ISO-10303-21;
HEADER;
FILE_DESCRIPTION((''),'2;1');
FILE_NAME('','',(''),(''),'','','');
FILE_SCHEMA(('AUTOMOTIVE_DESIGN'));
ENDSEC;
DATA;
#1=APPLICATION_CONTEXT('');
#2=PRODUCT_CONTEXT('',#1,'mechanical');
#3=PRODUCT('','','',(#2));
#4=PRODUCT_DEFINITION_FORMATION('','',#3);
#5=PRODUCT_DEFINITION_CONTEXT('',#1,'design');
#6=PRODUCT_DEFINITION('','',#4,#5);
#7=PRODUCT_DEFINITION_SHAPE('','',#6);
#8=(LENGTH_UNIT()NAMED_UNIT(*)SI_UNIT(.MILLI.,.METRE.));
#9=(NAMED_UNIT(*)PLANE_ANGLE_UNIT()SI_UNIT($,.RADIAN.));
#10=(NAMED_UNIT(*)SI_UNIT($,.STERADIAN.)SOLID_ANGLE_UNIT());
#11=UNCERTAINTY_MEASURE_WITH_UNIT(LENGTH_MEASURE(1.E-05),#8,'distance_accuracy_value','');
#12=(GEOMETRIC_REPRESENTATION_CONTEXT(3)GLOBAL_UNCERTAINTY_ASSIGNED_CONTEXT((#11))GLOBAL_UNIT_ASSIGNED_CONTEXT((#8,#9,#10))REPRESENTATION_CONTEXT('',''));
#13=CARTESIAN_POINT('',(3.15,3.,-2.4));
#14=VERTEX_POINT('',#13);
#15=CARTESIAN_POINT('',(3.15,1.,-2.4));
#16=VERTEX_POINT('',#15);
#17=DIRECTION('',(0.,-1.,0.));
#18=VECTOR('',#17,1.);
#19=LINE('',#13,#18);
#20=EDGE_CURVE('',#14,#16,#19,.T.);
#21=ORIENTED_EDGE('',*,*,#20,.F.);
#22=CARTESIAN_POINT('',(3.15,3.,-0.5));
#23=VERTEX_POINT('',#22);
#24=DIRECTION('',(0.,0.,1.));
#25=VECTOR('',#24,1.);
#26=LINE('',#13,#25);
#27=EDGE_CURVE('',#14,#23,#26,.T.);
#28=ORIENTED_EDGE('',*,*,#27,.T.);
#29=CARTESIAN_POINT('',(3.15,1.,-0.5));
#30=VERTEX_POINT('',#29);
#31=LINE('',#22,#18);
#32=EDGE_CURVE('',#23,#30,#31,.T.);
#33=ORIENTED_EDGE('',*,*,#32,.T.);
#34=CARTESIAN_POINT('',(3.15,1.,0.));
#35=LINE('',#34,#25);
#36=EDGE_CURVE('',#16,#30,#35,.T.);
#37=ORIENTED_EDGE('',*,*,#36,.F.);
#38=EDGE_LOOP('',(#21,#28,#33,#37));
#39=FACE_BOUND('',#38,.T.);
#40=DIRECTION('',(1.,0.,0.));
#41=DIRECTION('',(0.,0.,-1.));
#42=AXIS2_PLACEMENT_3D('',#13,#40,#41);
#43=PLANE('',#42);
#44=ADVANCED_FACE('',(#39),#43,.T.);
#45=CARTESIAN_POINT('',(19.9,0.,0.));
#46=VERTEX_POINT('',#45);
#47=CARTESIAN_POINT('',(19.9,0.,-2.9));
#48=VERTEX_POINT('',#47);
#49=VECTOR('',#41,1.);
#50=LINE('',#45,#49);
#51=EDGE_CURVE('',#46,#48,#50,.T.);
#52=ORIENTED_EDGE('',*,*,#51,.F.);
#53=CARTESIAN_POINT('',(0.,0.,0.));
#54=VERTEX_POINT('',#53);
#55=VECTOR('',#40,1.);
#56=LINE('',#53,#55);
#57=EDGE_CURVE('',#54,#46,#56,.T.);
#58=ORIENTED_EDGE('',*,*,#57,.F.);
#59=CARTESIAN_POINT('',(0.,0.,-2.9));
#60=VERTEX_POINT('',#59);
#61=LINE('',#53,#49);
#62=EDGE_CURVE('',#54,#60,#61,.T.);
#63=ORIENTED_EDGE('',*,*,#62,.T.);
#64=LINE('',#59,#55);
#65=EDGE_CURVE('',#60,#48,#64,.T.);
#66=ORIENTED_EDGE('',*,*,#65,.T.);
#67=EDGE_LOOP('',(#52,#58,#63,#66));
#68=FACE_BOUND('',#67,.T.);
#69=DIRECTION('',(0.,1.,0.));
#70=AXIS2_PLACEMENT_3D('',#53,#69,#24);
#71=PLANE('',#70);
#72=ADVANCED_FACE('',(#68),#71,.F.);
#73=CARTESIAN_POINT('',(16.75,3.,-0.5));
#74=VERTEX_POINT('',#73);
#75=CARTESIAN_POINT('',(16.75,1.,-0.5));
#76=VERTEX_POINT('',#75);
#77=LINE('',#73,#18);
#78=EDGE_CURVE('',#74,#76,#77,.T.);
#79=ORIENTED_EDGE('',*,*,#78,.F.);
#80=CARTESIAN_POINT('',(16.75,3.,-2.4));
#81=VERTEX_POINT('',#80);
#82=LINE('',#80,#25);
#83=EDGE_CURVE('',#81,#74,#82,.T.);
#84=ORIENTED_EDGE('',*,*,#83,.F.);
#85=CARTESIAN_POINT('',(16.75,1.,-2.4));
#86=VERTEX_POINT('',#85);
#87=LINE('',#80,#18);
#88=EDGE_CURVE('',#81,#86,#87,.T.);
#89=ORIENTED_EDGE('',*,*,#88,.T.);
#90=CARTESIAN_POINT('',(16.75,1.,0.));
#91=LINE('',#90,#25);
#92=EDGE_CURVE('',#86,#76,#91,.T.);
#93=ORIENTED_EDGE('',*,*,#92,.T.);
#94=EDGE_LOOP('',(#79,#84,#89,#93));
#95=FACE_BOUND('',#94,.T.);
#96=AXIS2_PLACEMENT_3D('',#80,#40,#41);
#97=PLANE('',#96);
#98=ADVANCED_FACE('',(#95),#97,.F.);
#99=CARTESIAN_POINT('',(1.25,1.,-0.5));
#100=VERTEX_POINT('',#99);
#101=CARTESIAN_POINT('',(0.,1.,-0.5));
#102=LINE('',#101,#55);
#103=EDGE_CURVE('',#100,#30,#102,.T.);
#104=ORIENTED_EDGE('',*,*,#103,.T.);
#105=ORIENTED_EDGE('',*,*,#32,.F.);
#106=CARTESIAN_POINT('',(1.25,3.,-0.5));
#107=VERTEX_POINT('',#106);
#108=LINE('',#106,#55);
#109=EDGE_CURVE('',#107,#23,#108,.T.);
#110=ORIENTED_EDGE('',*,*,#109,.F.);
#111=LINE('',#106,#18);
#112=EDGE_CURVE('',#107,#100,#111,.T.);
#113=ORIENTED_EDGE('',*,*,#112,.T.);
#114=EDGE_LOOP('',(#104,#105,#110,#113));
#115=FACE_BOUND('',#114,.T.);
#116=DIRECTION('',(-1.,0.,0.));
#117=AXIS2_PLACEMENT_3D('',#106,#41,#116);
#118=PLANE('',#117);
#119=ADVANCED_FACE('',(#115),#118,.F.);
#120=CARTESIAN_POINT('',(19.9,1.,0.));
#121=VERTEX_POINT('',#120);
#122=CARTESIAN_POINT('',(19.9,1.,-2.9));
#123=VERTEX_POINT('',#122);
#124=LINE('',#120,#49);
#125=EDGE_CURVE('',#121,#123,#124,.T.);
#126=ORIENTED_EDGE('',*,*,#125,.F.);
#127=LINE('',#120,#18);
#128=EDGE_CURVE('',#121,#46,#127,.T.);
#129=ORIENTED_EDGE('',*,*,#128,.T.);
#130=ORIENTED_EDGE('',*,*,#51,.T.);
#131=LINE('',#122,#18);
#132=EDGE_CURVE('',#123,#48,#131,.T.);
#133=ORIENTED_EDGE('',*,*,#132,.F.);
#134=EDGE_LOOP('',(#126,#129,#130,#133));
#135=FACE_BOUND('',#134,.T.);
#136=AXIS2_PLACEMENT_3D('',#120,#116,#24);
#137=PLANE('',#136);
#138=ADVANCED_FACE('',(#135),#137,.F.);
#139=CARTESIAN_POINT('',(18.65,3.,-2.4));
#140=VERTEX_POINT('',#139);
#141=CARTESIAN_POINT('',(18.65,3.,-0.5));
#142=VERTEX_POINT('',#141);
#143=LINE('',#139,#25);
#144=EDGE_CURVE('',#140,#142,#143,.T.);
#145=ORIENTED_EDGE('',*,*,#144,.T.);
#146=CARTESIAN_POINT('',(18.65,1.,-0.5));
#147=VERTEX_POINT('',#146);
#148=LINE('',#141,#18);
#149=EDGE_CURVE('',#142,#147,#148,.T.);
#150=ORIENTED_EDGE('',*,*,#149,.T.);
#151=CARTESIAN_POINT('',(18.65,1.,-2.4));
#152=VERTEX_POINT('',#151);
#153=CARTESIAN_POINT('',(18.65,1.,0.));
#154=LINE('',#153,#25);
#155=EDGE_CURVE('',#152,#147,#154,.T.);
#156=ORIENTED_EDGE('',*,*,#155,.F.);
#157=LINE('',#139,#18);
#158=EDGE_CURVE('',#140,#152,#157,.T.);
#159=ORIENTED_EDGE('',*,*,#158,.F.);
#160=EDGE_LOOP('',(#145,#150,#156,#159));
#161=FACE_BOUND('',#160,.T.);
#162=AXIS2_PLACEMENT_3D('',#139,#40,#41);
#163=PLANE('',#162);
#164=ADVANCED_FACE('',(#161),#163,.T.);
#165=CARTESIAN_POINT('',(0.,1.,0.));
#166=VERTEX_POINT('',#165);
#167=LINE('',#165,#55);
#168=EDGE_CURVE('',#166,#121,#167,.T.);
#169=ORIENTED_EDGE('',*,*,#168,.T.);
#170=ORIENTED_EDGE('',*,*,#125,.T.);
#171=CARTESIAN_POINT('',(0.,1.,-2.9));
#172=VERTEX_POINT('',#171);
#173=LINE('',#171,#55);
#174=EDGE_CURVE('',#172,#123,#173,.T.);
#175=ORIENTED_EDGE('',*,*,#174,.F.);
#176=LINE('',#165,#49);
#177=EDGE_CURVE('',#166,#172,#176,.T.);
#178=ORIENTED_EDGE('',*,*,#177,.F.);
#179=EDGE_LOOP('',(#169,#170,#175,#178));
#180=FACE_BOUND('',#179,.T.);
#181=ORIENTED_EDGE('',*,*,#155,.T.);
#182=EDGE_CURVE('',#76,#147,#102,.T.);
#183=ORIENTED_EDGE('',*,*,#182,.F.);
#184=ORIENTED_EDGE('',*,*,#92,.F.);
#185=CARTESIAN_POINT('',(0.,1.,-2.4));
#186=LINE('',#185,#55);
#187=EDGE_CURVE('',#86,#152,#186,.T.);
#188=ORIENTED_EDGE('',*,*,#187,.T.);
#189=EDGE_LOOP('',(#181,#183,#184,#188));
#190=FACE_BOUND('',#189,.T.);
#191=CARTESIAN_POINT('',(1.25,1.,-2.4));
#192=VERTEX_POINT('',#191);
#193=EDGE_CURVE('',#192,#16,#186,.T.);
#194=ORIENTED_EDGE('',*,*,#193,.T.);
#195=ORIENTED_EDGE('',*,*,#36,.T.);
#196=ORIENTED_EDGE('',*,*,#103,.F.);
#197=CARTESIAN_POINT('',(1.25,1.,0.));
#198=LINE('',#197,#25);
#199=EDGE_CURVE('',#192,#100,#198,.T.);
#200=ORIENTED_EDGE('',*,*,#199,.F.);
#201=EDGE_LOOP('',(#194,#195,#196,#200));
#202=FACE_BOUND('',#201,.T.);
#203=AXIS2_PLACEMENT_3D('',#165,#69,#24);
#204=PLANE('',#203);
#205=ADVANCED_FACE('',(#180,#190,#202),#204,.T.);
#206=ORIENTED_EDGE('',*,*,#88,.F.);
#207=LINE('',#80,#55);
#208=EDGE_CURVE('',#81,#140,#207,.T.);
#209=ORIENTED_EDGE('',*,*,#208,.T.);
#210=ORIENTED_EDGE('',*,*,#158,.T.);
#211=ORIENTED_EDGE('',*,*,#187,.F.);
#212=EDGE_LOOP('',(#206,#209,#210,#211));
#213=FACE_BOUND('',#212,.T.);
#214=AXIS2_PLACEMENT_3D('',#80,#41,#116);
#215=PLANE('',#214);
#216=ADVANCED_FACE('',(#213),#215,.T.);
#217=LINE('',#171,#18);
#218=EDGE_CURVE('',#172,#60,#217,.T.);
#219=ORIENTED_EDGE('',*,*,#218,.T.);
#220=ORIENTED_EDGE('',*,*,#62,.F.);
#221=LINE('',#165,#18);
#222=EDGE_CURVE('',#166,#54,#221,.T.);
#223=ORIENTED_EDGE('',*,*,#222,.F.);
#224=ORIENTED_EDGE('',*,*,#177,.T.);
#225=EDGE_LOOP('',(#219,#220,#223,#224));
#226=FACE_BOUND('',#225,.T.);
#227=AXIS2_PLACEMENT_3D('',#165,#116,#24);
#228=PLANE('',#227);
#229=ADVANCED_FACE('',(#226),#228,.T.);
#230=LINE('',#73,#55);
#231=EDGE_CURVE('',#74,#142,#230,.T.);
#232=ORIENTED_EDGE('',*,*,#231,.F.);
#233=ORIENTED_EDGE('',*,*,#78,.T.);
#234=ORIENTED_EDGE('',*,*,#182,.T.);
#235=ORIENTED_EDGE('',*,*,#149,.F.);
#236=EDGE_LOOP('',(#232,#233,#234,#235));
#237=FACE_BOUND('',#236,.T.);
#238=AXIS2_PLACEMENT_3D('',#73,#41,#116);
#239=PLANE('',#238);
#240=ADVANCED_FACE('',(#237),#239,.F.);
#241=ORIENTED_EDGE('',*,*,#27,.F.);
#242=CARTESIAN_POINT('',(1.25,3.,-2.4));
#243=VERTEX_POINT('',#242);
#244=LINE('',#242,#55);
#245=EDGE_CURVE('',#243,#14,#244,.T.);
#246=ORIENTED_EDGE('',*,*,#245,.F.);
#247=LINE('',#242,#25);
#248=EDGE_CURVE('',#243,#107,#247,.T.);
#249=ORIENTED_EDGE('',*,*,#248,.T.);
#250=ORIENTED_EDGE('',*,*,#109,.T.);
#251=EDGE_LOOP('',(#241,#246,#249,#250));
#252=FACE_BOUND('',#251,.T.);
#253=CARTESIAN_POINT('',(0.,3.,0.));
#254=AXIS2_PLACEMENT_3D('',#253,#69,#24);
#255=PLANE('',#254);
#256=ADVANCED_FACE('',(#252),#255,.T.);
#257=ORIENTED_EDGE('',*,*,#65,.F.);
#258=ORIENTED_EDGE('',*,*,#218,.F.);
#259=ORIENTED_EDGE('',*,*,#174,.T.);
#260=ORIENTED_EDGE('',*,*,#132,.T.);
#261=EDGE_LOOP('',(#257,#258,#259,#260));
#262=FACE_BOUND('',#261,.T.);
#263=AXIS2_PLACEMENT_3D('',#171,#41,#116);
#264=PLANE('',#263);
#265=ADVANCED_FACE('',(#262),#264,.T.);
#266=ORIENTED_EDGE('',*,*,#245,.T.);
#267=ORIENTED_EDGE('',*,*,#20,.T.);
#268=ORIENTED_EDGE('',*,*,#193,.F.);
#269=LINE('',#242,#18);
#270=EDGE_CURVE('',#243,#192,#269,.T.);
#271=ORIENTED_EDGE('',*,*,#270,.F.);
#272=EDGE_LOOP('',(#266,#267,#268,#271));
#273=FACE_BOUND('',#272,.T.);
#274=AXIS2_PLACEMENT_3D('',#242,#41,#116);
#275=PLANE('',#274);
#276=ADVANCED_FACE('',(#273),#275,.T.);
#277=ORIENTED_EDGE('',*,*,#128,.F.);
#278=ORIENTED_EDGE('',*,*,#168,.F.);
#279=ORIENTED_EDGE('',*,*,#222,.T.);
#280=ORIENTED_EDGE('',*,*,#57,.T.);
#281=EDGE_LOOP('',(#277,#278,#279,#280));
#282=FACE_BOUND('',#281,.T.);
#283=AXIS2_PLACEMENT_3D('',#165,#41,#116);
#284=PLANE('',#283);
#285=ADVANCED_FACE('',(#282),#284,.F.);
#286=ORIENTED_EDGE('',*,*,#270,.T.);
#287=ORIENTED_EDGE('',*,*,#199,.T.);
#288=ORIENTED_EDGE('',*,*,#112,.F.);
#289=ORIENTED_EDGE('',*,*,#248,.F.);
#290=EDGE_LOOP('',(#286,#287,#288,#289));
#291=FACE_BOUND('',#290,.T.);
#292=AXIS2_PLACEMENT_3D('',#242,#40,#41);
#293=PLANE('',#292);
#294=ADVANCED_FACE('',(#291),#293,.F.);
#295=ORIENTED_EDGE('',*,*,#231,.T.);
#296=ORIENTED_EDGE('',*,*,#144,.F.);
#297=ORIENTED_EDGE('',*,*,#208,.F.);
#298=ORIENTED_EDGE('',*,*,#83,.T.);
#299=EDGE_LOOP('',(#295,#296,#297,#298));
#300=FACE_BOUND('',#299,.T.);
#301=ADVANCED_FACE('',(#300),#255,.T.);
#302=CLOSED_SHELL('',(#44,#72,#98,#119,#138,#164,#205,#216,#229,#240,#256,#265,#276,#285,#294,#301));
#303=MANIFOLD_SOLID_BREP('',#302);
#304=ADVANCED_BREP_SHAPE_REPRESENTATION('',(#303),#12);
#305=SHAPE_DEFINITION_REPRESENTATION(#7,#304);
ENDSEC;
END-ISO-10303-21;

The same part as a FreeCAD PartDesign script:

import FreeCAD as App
import Part
import Sketcher
from FreeCAD import Vector
Q = App.Units.Quantity


def add_polygon(sketch, points):
    """Adds a closed chain of lines whose ends are joined by coincident constraints."""
    first, n = sketch.GeometryCount, len(points)
    for a, b in zip(points, points[1:] + points[:1]):
        sketch.addGeometry(Part.LineSegment(App.Vector(*a, 0), App.Vector(*b, 0)), False)
    for i in range(n):
        sketch.addConstraint(Sketcher.Constraint("Coincident", first + i, 2, first + (i + 1) % n, 1))

doc = App.newDocument("Part")
params = doc.addObject("Spreadsheet::Sheet", "Params")
for row, (alias, value) in enumerate([
    ("sketch1_width", "19.9 mm"),
    ("sketch1_width2", "1.9 mm"),
    ("sketch1_height", "2.9 mm"),
    ("pad1_length", "1 mm"),
    ("sketch2_width", "1.9 mm"),
    ("pad2_length", "3 mm"),
], start=1):
    params.set(f"A{row}", alias)
    params.set(f"B{row}", "=" + value)
    params.setAlias(f"B{row}", alias)

body = doc.addObject("PartDesign::Body", "Body")

# Sketch on XZ plane
sketch1 = doc.addObject("Sketcher::SketchObject", "Sketch")
body.addObject(sketch1)
sketch1.AttachmentSupport = (doc.XZ_Plane, [""])
sketch1.MapMode = "FlatFace"
add_polygon(sketch1, [(0, -2.9), (0, 0), (19.9, 0), (19.9, -2.9)])  # lines 0-3
add_polygon(sketch1, [(3.1, -0.5), (1.2, -0.5), (1.2, -2.4), (3.1, -2.4)])  # lines 4-7
add_polygon(sketch1, [(18.6, -0.5), (16.8, -0.5), (16.8, -2.4), (18.6, -2.4)])  # lines 8-11
sketch1.addConstraint([
    Sketcher.Constraint("Vertical", 0),
    Sketcher.Constraint("Horizontal", 1),
    Sketcher.Constraint("Vertical", 2),
    Sketcher.Constraint("Horizontal", 3),
    Sketcher.Constraint("Horizontal", 4),
    Sketcher.Constraint("Vertical", 5),
    Sketcher.Constraint("Horizontal", 6),
    Sketcher.Constraint("Vertical", 7),
    Sketcher.Constraint("Horizontal", 8),
    Sketcher.Constraint("Vertical", 9),
    Sketcher.Constraint("Horizontal", 10),
    Sketcher.Constraint("Vertical", 11),
    Sketcher.Constraint("Coincident", 0, 2, -1, 1),
    Sketcher.Constraint("Horizontal", 7, 2, 8, 2),
    Sketcher.Constraint("Horizontal", 6, 2, 9, 2),
    Sketcher.Constraint("Equal", 6, 8),
    Sketcher.Constraint("Equal", 10, 5),
    Sketcher.Constraint("DistanceX", 1, 1, 1, 2, Q("19.9 mm")),
    Sketcher.Constraint("DistanceX", 4, 2, 4, 1, Q("1.9 mm")),
    Sketcher.Constraint("DistanceY", 0, 1, 0, 2, Q("2.9 mm")),
    Sketcher.Constraint("DistanceY", 4, 2, -1, 1, Q("0.5 mm")),
    Sketcher.Constraint("DistanceX", 7, 2, 8, 2, Q("13.6 mm")),
    Sketcher.Constraint("DistanceX", -1, 1, 4, 2, Q("1.25 mm")),
])
sketch1.setExpression("Constraints[29]", "Params.sketch1_width")
sketch1.setExpression("Constraints[30]", "Params.sketch1_width2")
sketch1.setExpression("Constraints[31]", "Params.sketch1_height")
pad1 = doc.addObject("PartDesign::Pad", "Pad")
body.addObject(pad1)
pad1.Profile = sketch1
pad1.setExpression("Length", "Params.pad1_length")
pad1.Reversed = True

# Sketch on XZ plane
sketch2 = doc.addObject("Sketcher::SketchObject", "Sketch001")
body.addObject(sketch2)
sketch2.AttachmentSupport = (doc.XZ_Plane, [""])
sketch2.MapMode = "FlatFace"
add_polygon(sketch2, [(1.2, -2.4), (1.2, -0.5), (3.1, -0.5), (3.1, -2.4)])  # lines 0-3
add_polygon(sketch2, [(16.8, -2.4), (16.8, -0.5), (18.6, -0.5), (18.6, -2.4)])  # lines 4-7
sketch2.addConstraint([
    Sketcher.Constraint("Vertical", 0),
    Sketcher.Constraint("Horizontal", 1),
    Sketcher.Constraint("Vertical", 2),
    Sketcher.Constraint("Horizontal", 3),
    Sketcher.Constraint("Vertical", 4),
    Sketcher.Constraint("Horizontal", 5),
    Sketcher.Constraint("Vertical", 6),
    Sketcher.Constraint("Horizontal", 7),
    Sketcher.Constraint("Horizontal", 1, 2, 4, 2),
    Sketcher.Constraint("Horizontal", 3, 2, 6, 2),
    Sketcher.Constraint("Equal", 3, 5),
    Sketcher.Constraint("Equal", 7, 0),
    Sketcher.Constraint("DistanceX", 1, 1, 1, 2, Q("1.9 mm")),
    Sketcher.Constraint("DistanceY", 0, 2, -1, 1, Q("0.5 mm")),
    Sketcher.Constraint("DistanceX", 1, 2, 4, 2, Q("13.6 mm")),
    Sketcher.Constraint("DistanceX", -1, 1, 0, 2, Q("1.25 mm")),
])
sketch2.setExpression("Constraints[20]", "Params.sketch2_width")
pad2 = doc.addObject("PartDesign::Pad", "Pad001")
body.addObject(pad2)
pad2.Profile = sketch2
pad2.setExpression("Length", "Params.pad2_length")
pad2.Reversed = True

doc.recompute()
